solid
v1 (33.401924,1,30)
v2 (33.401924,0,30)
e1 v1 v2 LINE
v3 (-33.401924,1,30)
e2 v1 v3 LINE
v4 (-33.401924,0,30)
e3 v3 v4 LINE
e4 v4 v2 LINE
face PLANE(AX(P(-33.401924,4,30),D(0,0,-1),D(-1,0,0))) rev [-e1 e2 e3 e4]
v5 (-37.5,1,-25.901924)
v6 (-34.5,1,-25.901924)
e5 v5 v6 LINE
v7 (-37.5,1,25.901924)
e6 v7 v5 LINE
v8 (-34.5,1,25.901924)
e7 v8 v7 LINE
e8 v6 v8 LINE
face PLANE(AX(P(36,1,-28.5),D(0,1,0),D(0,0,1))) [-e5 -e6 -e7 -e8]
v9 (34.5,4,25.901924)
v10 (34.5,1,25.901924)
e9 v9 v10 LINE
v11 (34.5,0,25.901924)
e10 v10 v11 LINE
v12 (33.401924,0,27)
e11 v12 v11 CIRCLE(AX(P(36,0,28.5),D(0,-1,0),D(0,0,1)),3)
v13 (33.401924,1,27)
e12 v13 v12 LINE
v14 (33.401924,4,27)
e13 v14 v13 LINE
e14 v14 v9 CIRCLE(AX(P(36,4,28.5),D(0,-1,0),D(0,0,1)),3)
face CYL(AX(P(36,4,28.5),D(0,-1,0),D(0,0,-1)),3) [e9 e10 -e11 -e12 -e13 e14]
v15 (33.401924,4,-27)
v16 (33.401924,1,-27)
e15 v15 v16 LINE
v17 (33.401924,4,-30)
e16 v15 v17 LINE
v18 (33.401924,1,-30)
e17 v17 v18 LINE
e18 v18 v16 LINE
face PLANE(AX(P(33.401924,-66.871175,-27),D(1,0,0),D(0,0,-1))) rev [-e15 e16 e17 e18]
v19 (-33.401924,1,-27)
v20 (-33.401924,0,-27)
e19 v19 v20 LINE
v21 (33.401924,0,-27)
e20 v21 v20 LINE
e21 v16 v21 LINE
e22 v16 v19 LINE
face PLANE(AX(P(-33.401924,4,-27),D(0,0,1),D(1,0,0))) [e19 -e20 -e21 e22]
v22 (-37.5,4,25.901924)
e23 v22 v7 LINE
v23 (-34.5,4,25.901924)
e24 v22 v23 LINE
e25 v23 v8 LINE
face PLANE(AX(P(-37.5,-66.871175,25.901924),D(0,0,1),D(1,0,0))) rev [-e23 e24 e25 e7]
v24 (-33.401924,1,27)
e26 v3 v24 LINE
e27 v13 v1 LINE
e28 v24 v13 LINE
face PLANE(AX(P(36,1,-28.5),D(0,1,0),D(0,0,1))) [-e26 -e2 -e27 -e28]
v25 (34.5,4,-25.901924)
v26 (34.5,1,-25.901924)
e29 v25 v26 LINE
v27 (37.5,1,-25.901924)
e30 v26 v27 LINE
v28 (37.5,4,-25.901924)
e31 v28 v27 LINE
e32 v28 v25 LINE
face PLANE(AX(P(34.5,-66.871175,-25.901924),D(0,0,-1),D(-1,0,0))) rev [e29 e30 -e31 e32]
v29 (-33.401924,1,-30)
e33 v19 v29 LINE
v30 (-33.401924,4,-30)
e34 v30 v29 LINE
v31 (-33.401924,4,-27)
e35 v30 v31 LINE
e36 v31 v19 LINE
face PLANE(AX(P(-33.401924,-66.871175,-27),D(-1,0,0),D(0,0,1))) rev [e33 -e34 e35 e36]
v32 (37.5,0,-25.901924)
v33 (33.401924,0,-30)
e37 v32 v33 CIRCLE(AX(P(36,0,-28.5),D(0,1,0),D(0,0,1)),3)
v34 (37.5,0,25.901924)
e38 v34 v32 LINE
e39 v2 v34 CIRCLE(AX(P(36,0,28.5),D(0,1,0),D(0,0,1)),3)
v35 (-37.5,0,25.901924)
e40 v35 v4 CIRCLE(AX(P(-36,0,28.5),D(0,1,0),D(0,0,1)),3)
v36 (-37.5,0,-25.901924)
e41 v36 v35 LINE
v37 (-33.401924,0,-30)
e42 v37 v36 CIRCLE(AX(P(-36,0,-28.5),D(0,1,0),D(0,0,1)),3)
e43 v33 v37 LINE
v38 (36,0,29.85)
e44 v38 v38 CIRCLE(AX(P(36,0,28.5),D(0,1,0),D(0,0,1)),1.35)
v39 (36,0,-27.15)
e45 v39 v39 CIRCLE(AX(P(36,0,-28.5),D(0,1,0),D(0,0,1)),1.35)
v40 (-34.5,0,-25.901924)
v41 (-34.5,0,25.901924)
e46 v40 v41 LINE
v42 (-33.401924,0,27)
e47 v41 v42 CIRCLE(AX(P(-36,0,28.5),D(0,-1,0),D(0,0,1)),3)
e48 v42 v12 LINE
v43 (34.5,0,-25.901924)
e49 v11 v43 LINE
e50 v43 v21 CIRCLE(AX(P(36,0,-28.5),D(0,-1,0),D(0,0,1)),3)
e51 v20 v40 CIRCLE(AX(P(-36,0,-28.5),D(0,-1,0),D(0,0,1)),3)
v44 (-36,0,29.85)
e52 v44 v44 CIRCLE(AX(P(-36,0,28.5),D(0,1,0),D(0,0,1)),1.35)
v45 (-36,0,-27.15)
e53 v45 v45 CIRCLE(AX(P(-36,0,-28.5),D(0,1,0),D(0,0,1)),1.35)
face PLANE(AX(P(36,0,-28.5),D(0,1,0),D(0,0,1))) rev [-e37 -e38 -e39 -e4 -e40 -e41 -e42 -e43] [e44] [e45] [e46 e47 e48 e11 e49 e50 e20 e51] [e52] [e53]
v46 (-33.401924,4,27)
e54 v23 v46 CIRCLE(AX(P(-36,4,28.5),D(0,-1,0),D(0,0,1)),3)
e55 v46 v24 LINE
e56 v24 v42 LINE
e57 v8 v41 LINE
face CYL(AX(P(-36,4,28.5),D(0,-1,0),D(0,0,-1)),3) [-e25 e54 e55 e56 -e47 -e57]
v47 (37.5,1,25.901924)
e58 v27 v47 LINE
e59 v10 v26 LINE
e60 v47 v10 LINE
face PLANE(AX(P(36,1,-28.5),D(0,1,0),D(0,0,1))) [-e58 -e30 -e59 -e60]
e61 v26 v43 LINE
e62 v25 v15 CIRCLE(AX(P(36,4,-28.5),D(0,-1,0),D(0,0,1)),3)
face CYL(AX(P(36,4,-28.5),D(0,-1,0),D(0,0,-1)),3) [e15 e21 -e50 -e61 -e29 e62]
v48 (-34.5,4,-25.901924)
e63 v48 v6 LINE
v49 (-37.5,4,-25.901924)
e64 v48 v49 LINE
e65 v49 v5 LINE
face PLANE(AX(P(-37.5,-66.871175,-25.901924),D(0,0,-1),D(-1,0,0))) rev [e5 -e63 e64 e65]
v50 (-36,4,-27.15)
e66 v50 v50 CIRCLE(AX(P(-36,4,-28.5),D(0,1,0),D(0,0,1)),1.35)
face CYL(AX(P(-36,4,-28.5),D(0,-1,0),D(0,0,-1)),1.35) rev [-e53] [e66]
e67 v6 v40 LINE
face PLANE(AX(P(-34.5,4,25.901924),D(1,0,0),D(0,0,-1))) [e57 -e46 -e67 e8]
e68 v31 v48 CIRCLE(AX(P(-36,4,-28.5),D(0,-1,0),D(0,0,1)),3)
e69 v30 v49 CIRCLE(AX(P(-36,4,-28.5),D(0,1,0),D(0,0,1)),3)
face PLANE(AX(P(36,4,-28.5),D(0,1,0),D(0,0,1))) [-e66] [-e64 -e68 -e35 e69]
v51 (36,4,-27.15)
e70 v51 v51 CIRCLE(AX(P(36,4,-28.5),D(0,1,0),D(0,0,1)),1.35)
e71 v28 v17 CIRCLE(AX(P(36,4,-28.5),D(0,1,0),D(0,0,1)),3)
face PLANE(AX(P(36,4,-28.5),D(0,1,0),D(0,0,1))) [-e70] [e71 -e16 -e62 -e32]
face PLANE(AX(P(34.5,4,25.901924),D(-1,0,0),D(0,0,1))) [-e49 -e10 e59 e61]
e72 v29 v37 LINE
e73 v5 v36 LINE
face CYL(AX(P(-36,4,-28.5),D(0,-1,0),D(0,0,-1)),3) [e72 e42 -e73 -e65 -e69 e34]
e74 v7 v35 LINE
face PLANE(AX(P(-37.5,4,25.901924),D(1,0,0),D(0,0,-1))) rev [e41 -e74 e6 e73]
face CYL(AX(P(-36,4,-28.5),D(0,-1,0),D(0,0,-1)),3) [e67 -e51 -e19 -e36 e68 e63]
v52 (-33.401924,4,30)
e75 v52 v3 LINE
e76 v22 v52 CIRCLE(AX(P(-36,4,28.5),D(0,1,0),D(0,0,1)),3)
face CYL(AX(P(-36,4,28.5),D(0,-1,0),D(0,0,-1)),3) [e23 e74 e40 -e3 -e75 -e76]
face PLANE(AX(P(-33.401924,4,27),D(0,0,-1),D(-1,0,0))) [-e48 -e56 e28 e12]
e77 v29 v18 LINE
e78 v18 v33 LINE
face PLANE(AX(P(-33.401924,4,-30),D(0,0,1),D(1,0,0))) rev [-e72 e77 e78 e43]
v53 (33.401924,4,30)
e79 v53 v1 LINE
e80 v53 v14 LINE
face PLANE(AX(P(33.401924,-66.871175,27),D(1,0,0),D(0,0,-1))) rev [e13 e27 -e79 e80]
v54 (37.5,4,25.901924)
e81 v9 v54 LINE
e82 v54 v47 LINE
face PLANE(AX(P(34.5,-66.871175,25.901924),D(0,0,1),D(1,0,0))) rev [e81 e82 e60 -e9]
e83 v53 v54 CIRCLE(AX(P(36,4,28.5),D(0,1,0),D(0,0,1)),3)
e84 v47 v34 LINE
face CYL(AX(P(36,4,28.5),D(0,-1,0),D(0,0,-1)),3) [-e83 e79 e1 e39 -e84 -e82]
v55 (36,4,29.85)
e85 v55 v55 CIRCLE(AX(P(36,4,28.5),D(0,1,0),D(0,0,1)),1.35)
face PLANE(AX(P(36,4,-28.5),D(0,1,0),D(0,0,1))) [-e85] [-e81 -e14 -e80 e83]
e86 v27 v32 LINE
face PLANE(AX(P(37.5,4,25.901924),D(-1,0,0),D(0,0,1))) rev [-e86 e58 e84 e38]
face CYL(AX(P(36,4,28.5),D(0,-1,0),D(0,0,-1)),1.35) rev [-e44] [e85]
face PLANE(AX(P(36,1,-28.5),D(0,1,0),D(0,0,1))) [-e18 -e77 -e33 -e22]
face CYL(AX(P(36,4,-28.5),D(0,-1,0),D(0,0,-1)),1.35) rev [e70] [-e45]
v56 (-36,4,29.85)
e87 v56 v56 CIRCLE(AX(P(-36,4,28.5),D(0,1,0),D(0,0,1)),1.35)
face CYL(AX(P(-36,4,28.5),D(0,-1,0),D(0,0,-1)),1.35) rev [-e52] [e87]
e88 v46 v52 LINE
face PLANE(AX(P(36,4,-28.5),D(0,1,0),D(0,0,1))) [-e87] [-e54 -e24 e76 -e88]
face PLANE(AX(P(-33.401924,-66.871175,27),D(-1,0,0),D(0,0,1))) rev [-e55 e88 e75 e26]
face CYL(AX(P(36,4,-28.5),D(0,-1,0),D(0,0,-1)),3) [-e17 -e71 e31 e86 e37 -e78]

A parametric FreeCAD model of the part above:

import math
import FreeCAD as App
import Part
import Sketcher

V = App.Vector
Q = App.Units.Quantity


def add_polygon(sketch, points):
    """Adds a closed chain of lines whose ends are joined by coincident constraints."""
    first, n = sketch.GeometryCount, len(points)
    for a, b in zip(points, points[1:] + points[:1]):
        sketch.addGeometry(Part.LineSegment(App.Vector(*a, 0), App.Vector(*b, 0)), False)
    for i in range(n):
        sketch.addConstraint(Sketcher.Constraint("Coincident", first + i, 2, first + (i + 1) % n, 1))

doc = App.newDocument("Part")
body = doc.addObject("PartDesign::Body", "Body")

sketch1 = body.newObject("Sketcher::SketchObject", "Sketch")
sketch1.AttachmentSupport = (doc.getObject("XZ_Plane"), [""])
sketch1.MapMode = "FlatFace"
sketch1.addGeometry([
    Part.LineSegment(V(33.4, -30, 0), V(-33.4, -30, 0)),
    Part.ArcOfCircle(Part.Circle(V(-36, -28.5, 0), V(0, 0, 1), 3), math.radians(120), math.radians(330)),
    Part.LineSegment(V(-37.5, -25.9, 0), V(-37.5, 25.9, 0)),
    Part.ArcOfCircle(Part.Circle(V(-36, 28.5, 0), V(0, 0, 1), 3), math.radians(30), math.radians(240)),
    Part.LineSegment(V(-33.4, 30, 0), V(33.4, 30, 0)),
    Part.ArcOfCircle(Part.Circle(V(36, 28.5, 0), V(0, 0, 1), 3), math.radians(-60), math.radians(150)),
    Part.LineSegment(V(37.5, 25.9, 0), V(37.5, -25.9, 0)),
    Part.ArcOfCircle(Part.Circle(V(36, -28.5, 0), V(0, 0, 1), 3), math.radians(-150), math.radians(60)),
    Part.Circle(V(36, 28.5, 0), V(0, 0, 1), 1.4),
    Part.Circle(V(-36, 28.5, 0), V(0, 0, 1), 1.4),
    Part.Circle(V(36, -28.5, 0), V(0, 0, 1), 1.4),
    Part.LineSegment(V(-33.4, -27, 0), V(33.4, -27, 0)),
    Part.ArcOfCircle(Part.Circle(V(36, -28.5, 0), V(0, 0, 1), 3), math.radians(120), math.radians(150)),
    Part.LineSegment(V(34.5, -25.9, 0), V(34.5, 25.9, 0)),
    Part.ArcOfCircle(Part.Circle(V(36, 28.5, 0), V(0, 0, 1), 3), math.radians(-150), math.radians(-120)),
    Part.LineSegment(V(33.4, 27, 0), V(-33.4, 27, 0)),
    Part.ArcOfCircle(Part.Circle(V(-36, 28.5, 0), V(0, 0, 1), 3), math.radians(-60), math.radians(-30)),
    Part.LineSegment(V(-34.5, 25.9, 0), V(-34.5, -25.9, 0)),
    Part.ArcOfCircle(Part.Circle(V(-36, -28.5, 0), V(0, 0, 1), 3), math.radians(30), math.radians(60)),
    Part.Circle(V(-36, -28.5, 0), V(0, 0, 1), 1.4),
], False)
sketch1.addConstraint([
    Sketcher.Constraint("Coincident", 0, 2, 1, 2),
    Sketcher.Constraint("Coincident", 1, 1, 2, 1),
    Sketcher.Constraint("Coincident", 2, 2, 3, 2),
    Sketcher.Constraint("Coincident", 3, 1, 4, 1),
    Sketcher.Constraint("Coincident", 4, 2, 5, 2),
    Sketcher.Constraint("Coincident", 5, 1, 6, 1),
    Sketcher.Constraint("Coincident", 6, 2, 7, 2),
    Sketcher.Constraint("Coincident", 7, 1, 0, 1),
    Sketcher.Constraint("Coincident", 11, 2, 12, 2),
    Sketcher.Constraint("Coincident", 12, 1, 13, 1),
    Sketcher.Constraint("Coincident", 13, 2, 14, 2),
    Sketcher.Constraint("Coincident", 14, 1, 15, 1),
    Sketcher.Constraint("Coincident", 15, 2, 16, 2),
    Sketcher.Constraint("Coincident", 16, 1, 17, 1),
    Sketcher.Constraint("Coincident", 17, 2, 18, 2),
    Sketcher.Constraint("Coincident", 18, 1, 11, 1),
    Sketcher.Constraint("Horizontal", 0),
    Sketcher.Constraint("Vertical", 2),
    Sketcher.Constraint("Horizontal", 4),
    Sketcher.Constraint("Vertical", 6),
    Sketcher.Constraint("Horizontal", 11),
    Sketcher.Constraint("Vertical", 13),
    Sketcher.Constraint("Horizontal", 15),
    Sketcher.Constraint("Vertical", 17),
    Sketcher.Constraint("Coincident", 8, 3, 5, 3),
    Sketcher.Constraint("Coincident", 9, 3, 3, 3),
    Sketcher.Constraint("Coincident", 10, 3, 7, 3),
    Sketcher.Constraint("Coincident", 12, 3, 7, 3),
    Sketcher.Constraint("Coincident", 14, 3, 5, 3),
    Sketcher.Constraint("Coincident", 16, 3, 3, 3),
    Sketcher.Constraint("Coincident", 18, 3, 1, 3),
    Sketcher.Constraint("Coincident", 19, 3, 1, 3),
    Sketcher.Constraint("Equal", 1, 3),
    Sketcher.Constraint("Equal", 3, 5),
    Sketcher.Constraint("Equal", 5, 7),
    Sketcher.Constraint("Equal", 8, 9),
    Sketcher.Constraint("Equal", 9, 10),
    Sketcher.Constraint("Equal", 7, 12),
    Sketcher.Constraint("Equal", 12, 14),
    Sketcher.Constraint("Equal", 14, 16),
    Sketcher.Constraint("Equal", 16, 18),
    Sketcher.Constraint("Equal", 10, 19),
    Sketcher.Constraint("Symmetric", 1, 3, 5, 3, -1, 1),
    Sketcher.Constraint("Symmetric", 3, 3, 7, 3, -1, 1),
    Sketcher.Constraint("Symmetric", 3, 3, 5, 3, -2),
    Sketcher.Constraint("Horizontal", 2, 2, 5, 1),
    Sketcher.Constraint("Horizontal", 6, 2, 12, 1),
    Sketcher.Constraint("Horizontal", 13, 2, 16, 1),
    Sketcher.Constraint("Vertical", 0, 2, 3, 1),
    Sketcher.Constraint("Vertical", 7, 1, 11, 2),
    Sketcher.Constraint("Vertical", 11, 2, 14, 1),
    Sketcher.Constraint("Radius", 1, Q("3 mm")),
    Sketcher.Constraint("Diameter", 8, Q("2.7 mm")),
    Sketcher.Constraint("DistanceX", 1, 3, -1, 1, Q("36 mm")),
    Sketcher.Constraint("DistanceY", 0, 2, -1, 1, Q("30 mm")),
    Sketcher.Constraint("DistanceY", 11, 2, -1, 1, Q("27 mm")),
    Sketcher.Constraint("DistanceX", 12, 1, 6, 2, Q("3 mm")),
])
pad1 = body.newObject("PartDesign::Pad", "Pad")
pad1.Profile = sketch1
pad1.Length = 4
pad1.Reversed = True

sketch2 = body.newObject("Sketcher::SketchObject", "Sketch001")
sketch2.AttachmentSupport = (doc.getObject("XZ_Plane"), [""])
sketch2.MapMode = "FlatFace"
sketch2.AttachmentOffset = App.Placement(V(0, 0, -4), App.Rotation())
add_polygon(sketch2, [(-37.5, -25.9), (-37.5, 25.9), (-34.5, 25.9), (-34.5, -25.9)])
add_polygon(sketch2, [(-33.4, 27), (-33.4, 30), (33.4, 30), (33.4, 27)])
add_polygon(sketch2, [(34.5, -25.9), (34.5, 25.9), (37.5, 25.9), (37.5, -25.9)])
add_polygon(sketch2, [(-33.4, -30), (-33.4, -27), (33.4, -27), (33.4, -30)])
sketch2.addConstraint([
    Sketcher.Constraint("Vertical", 0),
    Sketcher.Constraint("Horizontal", 1),
    Sketcher.Constraint("Vertical", 2),
    Sketcher.Constraint("Horizontal", 3),
    Sketcher.Constraint("Vertical", 4),
    Sketcher.Constraint("Horizontal", 5),
    Sketcher.Constraint("Vertical", 6),
    Sketcher.Constraint("Horizontal", 7),
    Sketcher.Constraint("Vertical", 8),
    Sketcher.Constraint("Horizontal", 9),
    Sketcher.Constraint("Vertical", 10),
    Sketcher.Constraint("Horizontal", 11),
    Sketcher.Constraint("Vertical", 12),
    Sketcher.Constraint("Horizontal", 13),
    Sketcher.Constraint("Vertical", 14),
    Sketcher.Constraint("Horizontal", 15),
    Sketcher.Constraint("Symmetric", 2, 2, 8, 2, -1, 1),
    Sketcher.Constraint("Symmetric", 0, 2, 10, 2, -1, 1),
    Sketcher.Constraint("Symmetric", 6, 2, 12, 2, -1, 1),
    Sketcher.Constraint("Symmetric", 4, 2, 14, 2, -1, 1),
    Sketcher.Constraint("Horizontal", 1, 2, 8, 2),
    Sketcher.Constraint("Vertical", 7, 2, 12, 2),
    Sketcher.Constraint("Equal", 11, 4),
    Sketcher.Constraint("DistanceX", 1, 1, 1, 2, Q("3 mm")),
    Sketcher.Constraint("DistanceY", -1, 1, 4, 2, Q("30 mm")),
    Sketcher.Constraint("DistanceX", 1, 2, 8, 2, Q("69 mm")),
    Sketcher.Constraint("DistanceX", 5, 1, 5, 2, Q("66.803848 mm")),
    Sketcher.Constraint("DistanceY", 0, 1, 0, 2, Q("51.803848 mm")),
])
pocket1 = body.newObject("PartDesign::Pocket", "Pocket")
pocket1.Profile = sketch2
pocket1.Length = 3
pocket1.Reversed = True

doc.recompute()
